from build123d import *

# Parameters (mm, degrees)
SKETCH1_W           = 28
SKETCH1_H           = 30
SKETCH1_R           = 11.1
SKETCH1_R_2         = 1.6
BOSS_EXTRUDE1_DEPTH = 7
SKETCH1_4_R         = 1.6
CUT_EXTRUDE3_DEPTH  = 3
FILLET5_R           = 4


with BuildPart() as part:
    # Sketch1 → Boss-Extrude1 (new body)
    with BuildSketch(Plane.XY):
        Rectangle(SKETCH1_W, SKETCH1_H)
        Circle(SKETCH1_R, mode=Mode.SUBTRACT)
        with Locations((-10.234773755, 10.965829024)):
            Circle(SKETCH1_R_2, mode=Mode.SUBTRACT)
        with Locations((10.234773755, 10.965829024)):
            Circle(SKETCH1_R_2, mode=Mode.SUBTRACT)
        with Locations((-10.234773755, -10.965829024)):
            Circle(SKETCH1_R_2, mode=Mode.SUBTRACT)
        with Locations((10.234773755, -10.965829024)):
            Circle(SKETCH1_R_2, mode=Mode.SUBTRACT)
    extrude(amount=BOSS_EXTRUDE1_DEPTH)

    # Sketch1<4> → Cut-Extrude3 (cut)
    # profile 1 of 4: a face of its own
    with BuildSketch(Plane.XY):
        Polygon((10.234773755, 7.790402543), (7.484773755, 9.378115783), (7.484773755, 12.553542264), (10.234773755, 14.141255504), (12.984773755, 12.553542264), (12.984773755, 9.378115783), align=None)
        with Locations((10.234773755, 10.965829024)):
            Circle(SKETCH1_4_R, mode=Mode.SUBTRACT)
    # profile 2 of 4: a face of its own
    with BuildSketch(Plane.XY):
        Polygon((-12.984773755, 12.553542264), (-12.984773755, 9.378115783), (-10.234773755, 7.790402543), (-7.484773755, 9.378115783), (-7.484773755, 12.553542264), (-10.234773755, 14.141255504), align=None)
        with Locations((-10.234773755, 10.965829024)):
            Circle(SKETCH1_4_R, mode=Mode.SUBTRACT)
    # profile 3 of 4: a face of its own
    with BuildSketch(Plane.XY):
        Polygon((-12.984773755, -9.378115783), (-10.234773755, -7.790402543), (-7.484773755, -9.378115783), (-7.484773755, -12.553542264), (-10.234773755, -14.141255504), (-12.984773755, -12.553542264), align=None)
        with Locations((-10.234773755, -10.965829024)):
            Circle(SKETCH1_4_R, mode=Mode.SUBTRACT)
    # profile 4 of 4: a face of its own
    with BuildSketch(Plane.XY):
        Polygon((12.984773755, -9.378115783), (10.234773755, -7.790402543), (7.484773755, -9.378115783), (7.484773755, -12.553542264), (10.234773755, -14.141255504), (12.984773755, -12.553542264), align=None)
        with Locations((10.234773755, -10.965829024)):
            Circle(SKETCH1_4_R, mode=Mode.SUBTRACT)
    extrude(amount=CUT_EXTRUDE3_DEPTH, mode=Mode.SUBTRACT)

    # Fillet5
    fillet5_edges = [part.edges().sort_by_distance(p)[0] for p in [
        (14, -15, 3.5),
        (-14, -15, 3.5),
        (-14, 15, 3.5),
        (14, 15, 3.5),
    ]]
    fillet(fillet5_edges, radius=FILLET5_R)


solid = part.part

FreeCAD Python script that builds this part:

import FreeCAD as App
import Part
import Sketcher
Q = App.Units.Quantity


def edges_at(feature, points):
    """Names of the edges that pass closest to the given points."""
    edges = feature.Shape.Edges
    near = lambda p: min(range(len(edges)), key=lambda i: edges[i].distToShape(Part.Vertex(*p))[0])
    return sorted({f"Edge{near(p) + 1}" for p in points})

doc = App.newDocument("Part")
params = doc.addObject("Spreadsheet::Sheet", "Params")
for row, (alias, value) in enumerate([
    ("sketch1_diameter", "3.2 mm"),
    ("sketch1_diameter2", "22.2 mm"),
    ("sketch1_width", "28 mm"),
    ("sketch1_height", "30 mm"),
    ("pad1_length", "7 mm"),
    ("sketch2_diameter", "3.2 mm"),
    ("pocket1_length", "3 mm"),
    ("fillet_radius", "4 mm"),
], start=1):
    params.set(f"A{row}", alias)
    params.set(f"B{row}", "=" + value)
    params.setAlias(f"B{row}", alias)

body = doc.addObject("PartDesign::Body", "Body")

# Sketch on XY plane
sketch1 = body.newObject("Sketcher::SketchObject", "Sketch")
sketch1.AttachmentSupport = (doc.getObject("XY_Plane"), [""])
sketch1.MapMode = "FlatFace"
sketch1.addGeometry([
    Part.LineSegment(App.Vector(-14, 15, 0), App.Vector(-14, -15, 0)),  # 0
    Part.LineSegment(App.Vector(-14, -15, 0), App.Vector(14, -15, 0)),  # 1
    Part.LineSegment(App.Vector(14, -15, 0), App.Vector(14, 15, 0)),  # 2
    Part.LineSegment(App.Vector(14, 15, 0), App.Vector(-14, 15, 0)),  # 3
    Part.Circle(App.Vector(-10.234774, -10.965829, 0), App.Vector(0, 0, 1), 1.6),  # 4
    Part.Circle(App.Vector(10.234774, -10.965829, 0), App.Vector(0, 0, 1), 1.6),  # 5
    Part.Circle(App.Vector(-10.234774, 10.965829, 0), App.Vector(0, 0, 1), 1.6),  # 6
    Part.Circle(App.Vector(0, 0, 0), App.Vector(0, 0, 1), 11.1),  # 7
    Part.Circle(App.Vector(10.234774, 10.965829, 0), App.Vector(0, 0, 1), 1.6),  # 8
], False)
sketch1.addConstraint([
    Sketcher.Constraint("Coincident", 0, 2, 1, 1),
    Sketcher.Constraint("Coincident", 1, 2, 2, 1),
    Sketcher.Constraint("Coincident", 2, 2, 3, 1),
    Sketcher.Constraint("Coincident", 3, 2, 0, 1),
    Sketcher.Constraint("Vertical", 0),
    Sketcher.Constraint("Horizontal", 1),
    Sketcher.Constraint("Vertical", 2),
    Sketcher.Constraint("Horizontal", 3),
    Sketcher.Constraint("Coincident", 7, 3, -1, 1),
    Sketcher.Constraint("Equal", 4, 5),
    Sketcher.Constraint("Equal", 5, 6),
    Sketcher.Constraint("Equal", 6, 8),
    Sketcher.Constraint("Symmetric", 5, 3, 6, 3, -1, 1),
    Sketcher.Constraint("Symmetric", 4, 3, 8, 3, -1, 1),
    Sketcher.Constraint("Symmetric", 0, 2, 2, 2, -1, 1),
    Sketcher.Constraint("Symmetric", 4, 3, 5, 3, -2),
    Sketcher.Constraint("Diameter", 4, 3.2),
    Sketcher.Constraint("Diameter", 7, 22.2),
    Sketcher.Constraint("DistanceX", 1, 1, 1, 2, 28.0),
    Sketcher.Constraint("DistanceY", 0, 2, 0, 1, 30.0),
    Sketcher.Constraint("DistanceY", 4, 3, -1, 1, 10.965829),
    Sketcher.Constraint("DistanceX", 4, 3, -1, 1, 10.234774),
])
sketch1.setExpression("Constraints[16]", "Params.sketch1_diameter")
sketch1.setExpression("Constraints[17]", "Params.sketch1_diameter2")
sketch1.setExpression("Constraints[18]", "Params.sketch1_width")
sketch1.setExpression("Constraints[19]", "Params.sketch1_height")
pad1 = body.newObject("PartDesign::Pad", "Pad")
pad1.Profile = sketch1
pad1.setExpression("Length", "Params.pad1_length")

# Sketch on XY plane
sketch2 = body.newObject("Sketcher::SketchObject", "Sketch001")
sketch2.AttachmentSupport = (doc.getObject("XY_Plane"), [""])
sketch2.MapMode = "FlatFace"
sketch2.addGeometry([
    Part.LineSegment(App.Vector(7.484774, 9.378116, 0), App.Vector(10.234774, 7.790403, 0)),  # 0
    Part.LineSegment(App.Vector(10.234774, 7.790403, 0), App.Vector(12.984774, 9.378116, 0)),  # 1
    Part.LineSegment(App.Vector(12.984774, 9.378116, 0), App.Vector(12.984774, 12.553542, 0)),  # 2
    Part.LineSegment(App.Vector(12.984774, 12.553542, 0), App.Vector(10.234774, 14.141256, 0)),  # 3
    Part.LineSegment(App.Vector(10.234774, 14.141256, 0), App.Vector(7.484774, 12.553542, 0)),  # 4
    Part.LineSegment(App.Vector(7.484774, 12.553542, 0), App.Vector(7.484774, 9.378116, 0)),  # 5
    Part.Circle(App.Vector(10.234774, 10.965829, 0), App.Vector(0, 0, 1), 1.6),  # 6
    Part.LineSegment(App.Vector(-12.984774, 12.553542, 0), App.Vector(-12.984774, 9.378116, 0)),  # 7
    Part.LineSegment(App.Vector(-12.984774, 9.378116, 0), App.Vector(-10.234774, 7.790403, 0)),  # 8
    Part.LineSegment(App.Vector(-10.234774, 7.790403, 0), App.Vector(-7.484774, 9.378116, 0)),  # 9
    Part.LineSegment(App.Vector(-7.484774, 9.378116, 0), App.Vector(-7.484774, 12.553542, 0)),  # 10
    Part.LineSegment(App.Vector(-7.484774, 12.553542, 0), App.Vector(-10.234774, 14.141256, 0)),  # 11
    Part.LineSegment(App.Vector(-10.234774, 14.141256, 0), App.Vector(-12.984774, 12.553542, 0)),  # 12
    Part.Circle(App.Vector(-10.234774, 10.965829, 0), App.Vector(0, 0, 1), 1.6),  # 13
    Part.LineSegment(App.Vector(-10.234774, -7.790403, 0), App.Vector(-12.984774, -9.378116, 0)),  # 14
    Part.LineSegment(App.Vector(-12.984774, -9.378116, 0), App.Vector(-12.984774, -12.553542, 0)),  # 15
    Part.LineSegment(App.Vector(-12.984774, -12.553542, 0), App.Vector(-10.234774, -14.141256, 0)),  # 16
    Part.LineSegment(App.Vector(-10.234774, -14.141256, 0), App.Vector(-7.484774, -12.553542, 0)),  # 17
    Part.LineSegment(App.Vector(-7.484774, -12.553542, 0), App.Vector(-7.484774, -9.378116, 0)),  # 18
    Part.LineSegment(App.Vector(-7.484774, -9.378116, 0), App.Vector(-10.234774, -7.790403, 0)),  # 19
    Part.Circle(App.Vector(-10.234774, -10.965829, 0), App.Vector(0, 0, 1), 1.6),  # 20
    Part.LineSegment(App.Vector(12.984774, -9.378116, 0), App.Vector(10.234774, -7.790403, 0)),  # 21
    Part.LineSegment(App.Vector(10.234774, -7.790403, 0), App.Vector(7.484774, -9.378116, 0)),  # 22
    Part.LineSegment(App.Vector(7.484774, -9.378116, 0), App.Vector(7.484774, -12.553542, 0)),  # 23
    Part.LineSegment(App.Vector(7.484774, -12.553542, 0), App.Vector(10.234774, -14.141256, 0)),  # 24
    Part.LineSegment(App.Vector(10.234774, -14.141256, 0), App.Vector(12.984774, -12.553542, 0)),  # 25
    Part.LineSegment(App.Vector(12.984774, -12.553542, 0), App.Vector(12.984774, -9.378116, 0)),  # 26
    Part.Circle(App.Vector(10.234774, -10.965829, 0), App.Vector(0, 0, 1), 1.6),  # 27
], False)
sketch2.addConstraint([
    Sketcher.Constraint("Coincident", 0, 2, 1, 1),
    Sketcher.Constraint("Coincident", 1, 2, 2, 1),
    Sketcher.Constraint("Coincident", 2, 2, 3, 1),
    Sketcher.Constraint("Coincident", 3, 2, 4, 1),
    Sketcher.Constraint("Coincident", 4, 2, 5, 1),
    Sketcher.Constraint("Coincident", 5, 2, 0, 1),
    Sketcher.Constraint("Coincident", 7, 2, 8, 1),
    Sketcher.Constraint("Coincident", 8, 2, 9, 1),
    Sketcher.Constraint("Coincident", 9, 2, 10, 1),
    Sketcher.Constraint("Coincident", 10, 2, 11, 1),
    Sketcher.Constraint("Coincident", 11, 2, 12, 1),
    Sketcher.Constraint("Coincident", 12, 2, 7, 1),
    Sketcher.Constraint("Coincident", 14, 2, 15, 1),
    Sketcher.Constraint("Coincident", 15, 2, 16, 1),
    Sketcher.Constraint("Coincident", 16, 2, 17, 1),
    Sketcher.Constraint("Coincident", 17, 2, 18, 1),
    Sketcher.Constraint("Coincident", 18, 2, 19, 1),
    Sketcher.Constraint("Coincident", 19, 2, 14, 1),
    Sketcher.Constraint("Coincident", 21, 2, 22, 1),
    Sketcher.Constraint("Coincident", 22, 2, 23, 1),
    Sketcher.Constraint("Coincident", 23, 2, 24, 1),
    Sketcher.Constraint("Coincident", 24, 2, 25, 1),
    Sketcher.Constraint("Coincident", 25, 2, 26, 1),
    Sketcher.Constraint("Coincident", 26, 2, 21, 1),
    Sketcher.Constraint("Vertical", 2),
    Sketcher.Constraint("Vertical", 5),
    Sketcher.Constraint("Vertical", 7),
    Sketcher.Constraint("Vertical", 10),
    Sketcher.Constraint("Vertical", 15),
    Sketcher.Constraint("Vertical", 18),
    Sketcher.Constraint("Vertical", 23),
    Sketcher.Constraint("Vertical", 26),
    Sketcher.Constraint("Equal", 6, 13),
    Sketcher.Constraint("Equal", 13, 20),
    Sketcher.Constraint("Equal", 20, 27),
    Sketcher.Constraint("Symmetric", 6, 3, 20, 3, -1, 1),
    Sketcher.Constraint("Symmetric", 13, 3, 27, 3, -1, 1),
    Sketcher.Constraint("Symmetric", 1, 2, 14, 2, -1, 1),
    Sketcher.Constraint("Symmetric", 3, 2, 16, 2, -1, 1),
    Sketcher.Constraint("Symmetric", 4, 2, 17, 2, -1, 1),
    Sketcher.Constraint("Symmetric", 0, 2, 19, 2, -1, 1),
    Sketcher.Constraint("Symmetric", 8, 2, 21, 2, -1, 1),
    Sketcher.Constraint("Symmetric", 9, 2, 22, 2, -1, 1),
    Sketcher.Constraint("Symmetric", 11, 2, 24, 2, -1, 1),
    Sketcher.Constraint("Symmetric", 12, 2, 25, 2, -1, 1),
    Sketcher.Constraint("Symmetric", 6, 3, 13, 3, -2),
    Sketcher.Constraint("Symmetric", 1, 2, 7, 2, -2),
    Sketcher.Constraint("Symmetric", 0, 2, 8, 2, -2),
    Sketcher.Constraint("Symmetric", 5, 2, 9, 2, -2),
    Sketcher.Constraint("Symmetric", 3, 2, 11, 2, -2),
    Sketcher.Constraint("Parallel", 0, 3),
    Sketcher.Constraint("Parallel", 1, 4),
    Sketcher.Constraint("Parallel", 3, 8),
    Sketcher.Constraint("Parallel", 8, 11),
    Sketcher.Constraint("Parallel", 9, 12),
    Sketcher.Constraint("Parallel", 11, 16),
    Sketcher.Constraint("Parallel", 16, 19),
    Sketcher.Constraint("Parallel", 19, 21),
    Sketcher.Constraint("Parallel", 21, 24),
    Sketcher.Constraint("Horizontal", 2, 2, 4, 2),
    Sketcher.Constraint("Horizontal", 1, 2, 5, 2),
    Sketcher.Constraint("Vertical", 27, 3, 0, 2),
    Sketcher.Constraint("Diameter", 6, 3.2),
    Sketcher.Constraint("Angle", 0, Q("-30 deg")),
    Sketcher.Constraint("DistanceX", 4, 2, 2, 2, 5.5),
    Sketcher.Constraint("DistanceY", 2, 1, 2, 2, 3.175426),
    Sketcher.Constraint("DistanceY", -1, 1, 6, 3, 10.965829),
    Sketcher.Constraint("DistanceY", 27, 3, 0, 2, 18.756232),
    Sketcher.Constraint("DistanceX", -1, 1, 6, 3, 10.234774),
])
sketch2.setExpression("Constraints[62]", "Params.sketch2_diameter")
pocket1 = body.newObject("PartDesign::Pocket", "Pocket")
pocket1.Profile = sketch2
pocket1.setExpression("Length", "Params.pocket1_length")
pocket1.Reversed = True
doc.recompute()

fillet = body.newObject("PartDesign::Fillet", "Fillet")
fillet.Base = (pocket1, edges_at(pocket1, [
    (14, -15, 3.5),
    (-14, -15, 3.5),
    (-14, 15, 3.5),
    (14, 15, 3.5),
]))
fillet.setExpression("Radius", "Params.fillet_radius")

doc.recompute()
